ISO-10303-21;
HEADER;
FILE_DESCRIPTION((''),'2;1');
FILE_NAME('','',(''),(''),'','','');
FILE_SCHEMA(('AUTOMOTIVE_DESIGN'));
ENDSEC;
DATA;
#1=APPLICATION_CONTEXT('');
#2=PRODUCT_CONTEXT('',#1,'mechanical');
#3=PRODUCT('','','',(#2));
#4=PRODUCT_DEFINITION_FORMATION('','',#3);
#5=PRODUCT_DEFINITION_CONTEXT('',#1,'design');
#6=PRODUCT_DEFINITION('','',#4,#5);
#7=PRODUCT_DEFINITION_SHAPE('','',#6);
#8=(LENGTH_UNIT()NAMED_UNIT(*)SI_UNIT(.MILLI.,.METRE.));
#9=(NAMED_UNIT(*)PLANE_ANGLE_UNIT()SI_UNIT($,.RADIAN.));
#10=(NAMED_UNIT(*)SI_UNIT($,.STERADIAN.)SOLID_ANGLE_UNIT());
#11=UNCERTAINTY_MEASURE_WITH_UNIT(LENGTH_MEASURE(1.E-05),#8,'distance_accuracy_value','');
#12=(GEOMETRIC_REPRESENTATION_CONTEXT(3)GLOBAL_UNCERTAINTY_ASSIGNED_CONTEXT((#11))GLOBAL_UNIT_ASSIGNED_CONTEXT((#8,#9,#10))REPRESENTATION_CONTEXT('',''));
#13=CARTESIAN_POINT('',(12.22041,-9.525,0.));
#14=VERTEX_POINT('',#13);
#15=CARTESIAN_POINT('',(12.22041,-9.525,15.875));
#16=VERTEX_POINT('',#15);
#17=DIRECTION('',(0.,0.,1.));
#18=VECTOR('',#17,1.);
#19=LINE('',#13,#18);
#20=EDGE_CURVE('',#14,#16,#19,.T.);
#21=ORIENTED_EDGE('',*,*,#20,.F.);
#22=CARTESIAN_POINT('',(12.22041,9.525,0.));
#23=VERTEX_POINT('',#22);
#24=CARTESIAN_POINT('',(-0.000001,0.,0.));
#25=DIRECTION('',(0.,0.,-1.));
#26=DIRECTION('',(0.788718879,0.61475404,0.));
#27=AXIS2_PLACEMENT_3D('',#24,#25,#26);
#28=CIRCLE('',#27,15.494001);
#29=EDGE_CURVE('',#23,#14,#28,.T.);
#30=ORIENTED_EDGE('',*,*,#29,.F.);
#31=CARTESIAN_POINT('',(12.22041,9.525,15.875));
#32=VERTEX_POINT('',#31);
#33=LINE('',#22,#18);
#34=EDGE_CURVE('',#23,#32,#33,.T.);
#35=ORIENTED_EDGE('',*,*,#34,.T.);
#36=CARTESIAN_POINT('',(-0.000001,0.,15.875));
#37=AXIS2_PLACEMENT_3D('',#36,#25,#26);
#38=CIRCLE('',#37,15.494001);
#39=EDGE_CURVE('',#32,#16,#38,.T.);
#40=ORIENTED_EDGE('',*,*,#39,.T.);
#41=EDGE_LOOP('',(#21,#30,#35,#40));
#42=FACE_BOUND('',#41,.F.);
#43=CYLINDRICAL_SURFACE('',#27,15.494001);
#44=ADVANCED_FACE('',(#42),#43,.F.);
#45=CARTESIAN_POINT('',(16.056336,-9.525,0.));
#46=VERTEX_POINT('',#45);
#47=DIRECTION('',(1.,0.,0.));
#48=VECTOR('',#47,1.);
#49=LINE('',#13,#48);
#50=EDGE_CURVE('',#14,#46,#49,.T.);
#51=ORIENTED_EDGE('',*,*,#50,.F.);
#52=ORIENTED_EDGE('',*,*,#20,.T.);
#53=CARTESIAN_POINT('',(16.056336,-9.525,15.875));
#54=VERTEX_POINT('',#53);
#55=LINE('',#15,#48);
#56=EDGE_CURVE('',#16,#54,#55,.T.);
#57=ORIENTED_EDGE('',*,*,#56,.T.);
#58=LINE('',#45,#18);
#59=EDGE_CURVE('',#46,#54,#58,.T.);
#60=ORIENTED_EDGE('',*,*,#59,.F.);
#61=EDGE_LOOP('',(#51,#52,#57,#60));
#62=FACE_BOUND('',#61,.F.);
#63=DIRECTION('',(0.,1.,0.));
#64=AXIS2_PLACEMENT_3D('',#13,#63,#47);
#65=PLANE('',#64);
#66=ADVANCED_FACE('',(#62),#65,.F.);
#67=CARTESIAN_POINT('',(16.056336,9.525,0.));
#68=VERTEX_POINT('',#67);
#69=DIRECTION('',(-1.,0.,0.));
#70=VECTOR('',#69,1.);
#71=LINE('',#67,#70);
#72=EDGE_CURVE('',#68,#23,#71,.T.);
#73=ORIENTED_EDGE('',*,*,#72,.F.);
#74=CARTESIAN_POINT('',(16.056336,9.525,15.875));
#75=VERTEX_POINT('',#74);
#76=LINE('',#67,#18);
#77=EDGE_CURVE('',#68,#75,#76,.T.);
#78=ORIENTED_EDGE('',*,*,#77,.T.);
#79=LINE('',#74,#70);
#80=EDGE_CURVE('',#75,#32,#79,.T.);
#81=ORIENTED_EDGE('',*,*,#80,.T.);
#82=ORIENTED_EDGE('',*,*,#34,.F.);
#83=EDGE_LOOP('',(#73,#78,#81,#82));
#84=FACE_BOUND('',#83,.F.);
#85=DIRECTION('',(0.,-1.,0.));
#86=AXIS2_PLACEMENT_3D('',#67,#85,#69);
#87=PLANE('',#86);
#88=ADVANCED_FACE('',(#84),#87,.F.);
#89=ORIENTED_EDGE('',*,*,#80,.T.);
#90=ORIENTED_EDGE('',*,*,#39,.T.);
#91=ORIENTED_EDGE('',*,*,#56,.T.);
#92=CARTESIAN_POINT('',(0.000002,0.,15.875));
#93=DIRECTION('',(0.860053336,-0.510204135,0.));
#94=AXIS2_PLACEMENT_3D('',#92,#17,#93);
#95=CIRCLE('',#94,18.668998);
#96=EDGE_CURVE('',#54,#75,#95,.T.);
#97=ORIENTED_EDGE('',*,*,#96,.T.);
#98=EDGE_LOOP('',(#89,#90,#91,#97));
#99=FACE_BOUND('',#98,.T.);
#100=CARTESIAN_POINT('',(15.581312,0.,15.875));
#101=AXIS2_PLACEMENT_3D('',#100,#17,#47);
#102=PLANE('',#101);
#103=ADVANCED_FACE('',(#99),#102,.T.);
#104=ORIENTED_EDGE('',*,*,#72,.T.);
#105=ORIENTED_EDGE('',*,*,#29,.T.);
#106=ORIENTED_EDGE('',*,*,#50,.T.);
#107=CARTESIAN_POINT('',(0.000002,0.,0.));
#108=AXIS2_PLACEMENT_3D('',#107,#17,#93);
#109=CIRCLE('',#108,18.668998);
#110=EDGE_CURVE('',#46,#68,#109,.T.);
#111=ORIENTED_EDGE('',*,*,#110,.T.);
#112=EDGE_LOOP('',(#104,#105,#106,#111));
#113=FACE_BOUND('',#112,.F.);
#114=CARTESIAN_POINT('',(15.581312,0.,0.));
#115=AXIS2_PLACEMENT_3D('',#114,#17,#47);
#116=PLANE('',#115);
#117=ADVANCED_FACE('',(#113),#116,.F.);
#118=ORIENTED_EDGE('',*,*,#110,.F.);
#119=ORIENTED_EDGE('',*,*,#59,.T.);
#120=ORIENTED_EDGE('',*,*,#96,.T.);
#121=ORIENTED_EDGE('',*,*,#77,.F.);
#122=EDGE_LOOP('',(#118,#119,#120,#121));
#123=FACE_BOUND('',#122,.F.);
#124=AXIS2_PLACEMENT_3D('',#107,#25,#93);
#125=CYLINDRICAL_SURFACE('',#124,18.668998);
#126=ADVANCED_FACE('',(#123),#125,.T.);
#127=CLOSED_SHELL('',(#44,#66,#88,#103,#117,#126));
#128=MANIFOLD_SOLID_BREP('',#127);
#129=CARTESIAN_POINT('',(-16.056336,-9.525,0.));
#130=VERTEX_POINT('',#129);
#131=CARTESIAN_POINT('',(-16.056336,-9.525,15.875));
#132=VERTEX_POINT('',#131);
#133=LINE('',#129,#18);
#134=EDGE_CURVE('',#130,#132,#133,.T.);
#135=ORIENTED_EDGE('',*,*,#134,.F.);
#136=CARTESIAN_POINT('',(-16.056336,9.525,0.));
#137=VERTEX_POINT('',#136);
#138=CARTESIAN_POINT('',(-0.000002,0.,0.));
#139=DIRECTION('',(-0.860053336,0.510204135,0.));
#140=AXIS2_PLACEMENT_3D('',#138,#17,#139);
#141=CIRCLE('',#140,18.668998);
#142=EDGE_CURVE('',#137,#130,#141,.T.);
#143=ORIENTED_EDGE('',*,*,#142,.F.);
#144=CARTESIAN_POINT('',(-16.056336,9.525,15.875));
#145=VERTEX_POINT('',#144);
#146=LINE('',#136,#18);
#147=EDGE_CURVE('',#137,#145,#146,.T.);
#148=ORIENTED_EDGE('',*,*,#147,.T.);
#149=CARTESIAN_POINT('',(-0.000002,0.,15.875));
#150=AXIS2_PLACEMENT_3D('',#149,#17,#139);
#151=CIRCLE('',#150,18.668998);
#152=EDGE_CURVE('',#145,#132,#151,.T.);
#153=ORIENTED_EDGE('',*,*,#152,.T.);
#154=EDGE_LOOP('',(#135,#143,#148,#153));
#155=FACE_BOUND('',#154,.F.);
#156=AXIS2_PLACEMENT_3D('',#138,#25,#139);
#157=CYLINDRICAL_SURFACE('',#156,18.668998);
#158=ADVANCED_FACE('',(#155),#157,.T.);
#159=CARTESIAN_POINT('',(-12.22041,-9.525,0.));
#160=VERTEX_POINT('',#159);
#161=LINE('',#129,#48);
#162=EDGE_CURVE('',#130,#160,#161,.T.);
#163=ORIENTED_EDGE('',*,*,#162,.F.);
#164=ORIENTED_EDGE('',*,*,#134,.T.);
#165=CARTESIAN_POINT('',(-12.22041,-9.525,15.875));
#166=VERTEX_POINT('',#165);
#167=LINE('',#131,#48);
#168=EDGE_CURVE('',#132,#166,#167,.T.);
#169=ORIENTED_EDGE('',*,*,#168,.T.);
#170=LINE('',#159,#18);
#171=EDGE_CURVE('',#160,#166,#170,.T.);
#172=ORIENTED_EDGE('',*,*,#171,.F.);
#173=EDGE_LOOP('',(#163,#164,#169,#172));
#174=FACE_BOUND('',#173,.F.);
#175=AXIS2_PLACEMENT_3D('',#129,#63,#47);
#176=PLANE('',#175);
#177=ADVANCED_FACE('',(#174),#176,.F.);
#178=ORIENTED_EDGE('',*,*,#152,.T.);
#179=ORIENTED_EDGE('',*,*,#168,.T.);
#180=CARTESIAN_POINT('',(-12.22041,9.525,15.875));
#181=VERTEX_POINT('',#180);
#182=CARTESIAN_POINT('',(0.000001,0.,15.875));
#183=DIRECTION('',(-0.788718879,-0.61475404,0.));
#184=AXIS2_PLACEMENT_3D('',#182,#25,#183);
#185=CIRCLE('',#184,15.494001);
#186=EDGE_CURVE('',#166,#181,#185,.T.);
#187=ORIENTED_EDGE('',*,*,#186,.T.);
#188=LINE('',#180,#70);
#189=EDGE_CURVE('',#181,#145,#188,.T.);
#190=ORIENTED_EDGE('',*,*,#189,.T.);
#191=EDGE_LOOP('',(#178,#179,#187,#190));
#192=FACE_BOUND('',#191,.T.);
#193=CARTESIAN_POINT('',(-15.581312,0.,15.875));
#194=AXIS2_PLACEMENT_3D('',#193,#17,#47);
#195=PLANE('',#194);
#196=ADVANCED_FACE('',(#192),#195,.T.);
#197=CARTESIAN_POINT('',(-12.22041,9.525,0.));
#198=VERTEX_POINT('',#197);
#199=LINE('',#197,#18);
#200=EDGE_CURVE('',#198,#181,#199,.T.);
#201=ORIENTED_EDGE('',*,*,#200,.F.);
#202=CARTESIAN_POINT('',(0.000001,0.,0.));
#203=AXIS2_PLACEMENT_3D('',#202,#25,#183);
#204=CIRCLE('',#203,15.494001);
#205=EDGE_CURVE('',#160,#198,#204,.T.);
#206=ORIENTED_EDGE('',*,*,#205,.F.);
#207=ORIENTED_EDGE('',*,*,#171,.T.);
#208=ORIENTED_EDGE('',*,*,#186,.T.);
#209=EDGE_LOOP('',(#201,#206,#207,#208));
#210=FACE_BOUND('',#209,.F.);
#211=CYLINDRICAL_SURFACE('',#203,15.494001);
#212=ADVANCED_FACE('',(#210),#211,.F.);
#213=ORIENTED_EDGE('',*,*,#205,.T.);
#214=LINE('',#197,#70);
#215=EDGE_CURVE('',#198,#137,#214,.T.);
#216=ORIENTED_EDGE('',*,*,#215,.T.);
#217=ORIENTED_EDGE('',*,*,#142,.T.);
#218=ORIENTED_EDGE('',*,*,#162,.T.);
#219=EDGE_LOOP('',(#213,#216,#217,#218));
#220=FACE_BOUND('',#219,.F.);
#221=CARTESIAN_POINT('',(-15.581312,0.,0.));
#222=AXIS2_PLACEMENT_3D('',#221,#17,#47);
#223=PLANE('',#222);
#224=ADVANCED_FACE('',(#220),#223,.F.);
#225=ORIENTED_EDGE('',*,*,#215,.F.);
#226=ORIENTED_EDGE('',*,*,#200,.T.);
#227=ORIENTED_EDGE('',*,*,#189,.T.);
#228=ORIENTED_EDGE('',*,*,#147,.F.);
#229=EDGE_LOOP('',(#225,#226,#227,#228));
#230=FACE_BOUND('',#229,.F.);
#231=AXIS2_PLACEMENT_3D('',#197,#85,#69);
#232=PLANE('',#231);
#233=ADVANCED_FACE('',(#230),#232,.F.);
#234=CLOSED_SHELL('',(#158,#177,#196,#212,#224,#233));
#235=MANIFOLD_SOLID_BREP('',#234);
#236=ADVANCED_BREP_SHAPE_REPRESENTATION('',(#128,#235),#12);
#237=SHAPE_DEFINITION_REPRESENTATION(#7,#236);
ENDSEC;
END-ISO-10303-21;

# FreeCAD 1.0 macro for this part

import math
import FreeCAD as App
import Part
import Sketcher

V = App.Vector
Q = App.Units.Quantity

doc = App.newDocument("Part")
body = doc.addObject("PartDesign::Body", "Body")
body.AllowCompound = True

sketch1 = body.newObject("Sketcher::SketchObject", "Sketch")
sketch1.AttachmentSupport = (doc.getObject("XY_Plane"), [""])
sketch1.MapMode = "FlatFace"
sketch1.addGeometry(Part.ArcOfCircle(Part.Circle(V(0.000001, 0, 0), V(0, 0, 1), 15.494001), math.radians(142.065949), math.radians(217.934051)), False)
sketch1.addGeometry(Part.LineSegment(V(-12.22041, 9.525, 0), V(-16.056336, 9.525, 0)), False)
sketch1.addGeometry(Part.ArcOfCircle(Part.Circle(V(-0.000002, 0, 0), V(0, 0, 1), 18.668998), math.radians(149.322572), math.radians(210.677428)), False)
sketch1.addGeometry(Part.LineSegment(V(-16.056336, -9.525, 0), V(-12.22041, -9.525, 0)), False)
sketch1.addGeometry(Part.LineSegment(V(16.056336, 9.525, 0), V(12.22041, 9.525, 0)), False)
sketch1.addGeometry(Part.ArcOfCircle(Part.Circle(V(-0.000001, 0, 0), V(0, 0, 1), 15.494001), math.radians(-37.934051), math.radians(37.934051)), False)
sketch1.addGeometry(Part.LineSegment(V(12.22041, -9.525, 0), V(16.056336, -9.525, 0)), False)
sketch1.addGeometry(Part.ArcOfCircle(Part.Circle(V(0.000002, 0, 0), V(0, 0, 1), 18.668998), math.radians(-30.677428), math.radians(30.677428)), False)
sketch1.addConstraint(Sketcher.Constraint("Coincident", 0, 1, 1, 1))
sketch1.addConstraint(Sketcher.Constraint("Coincident", 1, 2, 2, 1))
sketch1.addConstraint(Sketcher.Constraint("Coincident", 2, 2, 3, 1))
sketch1.addConstraint(Sketcher.Constraint("Coincident", 3, 2, 0, 2))
sketch1.addConstraint(Sketcher.Constraint("Coincident", 4, 2, 5, 2))
sketch1.addConstraint(Sketcher.Constraint("Coincident", 5, 1, 6, 1))
sketch1.addConstraint(Sketcher.Constraint("Coincident", 6, 2, 7, 1))
sketch1.addConstraint(Sketcher.Constraint("Coincident", 7, 2, 4, 1))
sketch1.addConstraint(Sketcher.Constraint("Horizontal", 1))
sketch1.addConstraint(Sketcher.Constraint("Horizontal", 3))
sketch1.addConstraint(Sketcher.Constraint("Horizontal", 4))
sketch1.addConstraint(Sketcher.Constraint("Horizontal", 6))
sketch1.addConstraint(Sketcher.Constraint("Coincident", 0, 3, -1, 1))
sketch1.addConstraint(Sketcher.Constraint("Coincident", 2, 3, -1, 1))
sketch1.addConstraint(Sketcher.Constraint("Coincident", 5, 3, -1, 1))
sketch1.addConstraint(Sketcher.Constraint("Coincident", 7, 3, -1, 1))
sketch1.addConstraint(Sketcher.Constraint("Equal", 0, 5))
sketch1.addConstraint(Sketcher.Constraint("Equal", 2, 7))
sketch1.addConstraint(Sketcher.Constraint("Horizontal", 1, 2, 4, 2))
sketch1.addConstraint(Sketcher.Constraint("Horizontal", 3, 2, 5, 1))
sketch1.addConstraint(Sketcher.Constraint("Vertical", 1, 2, 2, 2))
sketch1.addConstraint(Sketcher.Constraint("Radius", 0, Q("0.6100001 in")))
sketch1.addConstraint(Sketcher.Constraint("Radius", 2, Q("0.7349999 in")))
sketch1.addConstraint(Sketcher.Constraint("DistanceY", 2, 2, 1, 2, Q("0.75 in")))
pad1 = body.newObject("PartDesign::Pad", "Pad")
pad1.Profile = sketch1
pad1.Length = Q("0.625 in")

doc.recompute()
